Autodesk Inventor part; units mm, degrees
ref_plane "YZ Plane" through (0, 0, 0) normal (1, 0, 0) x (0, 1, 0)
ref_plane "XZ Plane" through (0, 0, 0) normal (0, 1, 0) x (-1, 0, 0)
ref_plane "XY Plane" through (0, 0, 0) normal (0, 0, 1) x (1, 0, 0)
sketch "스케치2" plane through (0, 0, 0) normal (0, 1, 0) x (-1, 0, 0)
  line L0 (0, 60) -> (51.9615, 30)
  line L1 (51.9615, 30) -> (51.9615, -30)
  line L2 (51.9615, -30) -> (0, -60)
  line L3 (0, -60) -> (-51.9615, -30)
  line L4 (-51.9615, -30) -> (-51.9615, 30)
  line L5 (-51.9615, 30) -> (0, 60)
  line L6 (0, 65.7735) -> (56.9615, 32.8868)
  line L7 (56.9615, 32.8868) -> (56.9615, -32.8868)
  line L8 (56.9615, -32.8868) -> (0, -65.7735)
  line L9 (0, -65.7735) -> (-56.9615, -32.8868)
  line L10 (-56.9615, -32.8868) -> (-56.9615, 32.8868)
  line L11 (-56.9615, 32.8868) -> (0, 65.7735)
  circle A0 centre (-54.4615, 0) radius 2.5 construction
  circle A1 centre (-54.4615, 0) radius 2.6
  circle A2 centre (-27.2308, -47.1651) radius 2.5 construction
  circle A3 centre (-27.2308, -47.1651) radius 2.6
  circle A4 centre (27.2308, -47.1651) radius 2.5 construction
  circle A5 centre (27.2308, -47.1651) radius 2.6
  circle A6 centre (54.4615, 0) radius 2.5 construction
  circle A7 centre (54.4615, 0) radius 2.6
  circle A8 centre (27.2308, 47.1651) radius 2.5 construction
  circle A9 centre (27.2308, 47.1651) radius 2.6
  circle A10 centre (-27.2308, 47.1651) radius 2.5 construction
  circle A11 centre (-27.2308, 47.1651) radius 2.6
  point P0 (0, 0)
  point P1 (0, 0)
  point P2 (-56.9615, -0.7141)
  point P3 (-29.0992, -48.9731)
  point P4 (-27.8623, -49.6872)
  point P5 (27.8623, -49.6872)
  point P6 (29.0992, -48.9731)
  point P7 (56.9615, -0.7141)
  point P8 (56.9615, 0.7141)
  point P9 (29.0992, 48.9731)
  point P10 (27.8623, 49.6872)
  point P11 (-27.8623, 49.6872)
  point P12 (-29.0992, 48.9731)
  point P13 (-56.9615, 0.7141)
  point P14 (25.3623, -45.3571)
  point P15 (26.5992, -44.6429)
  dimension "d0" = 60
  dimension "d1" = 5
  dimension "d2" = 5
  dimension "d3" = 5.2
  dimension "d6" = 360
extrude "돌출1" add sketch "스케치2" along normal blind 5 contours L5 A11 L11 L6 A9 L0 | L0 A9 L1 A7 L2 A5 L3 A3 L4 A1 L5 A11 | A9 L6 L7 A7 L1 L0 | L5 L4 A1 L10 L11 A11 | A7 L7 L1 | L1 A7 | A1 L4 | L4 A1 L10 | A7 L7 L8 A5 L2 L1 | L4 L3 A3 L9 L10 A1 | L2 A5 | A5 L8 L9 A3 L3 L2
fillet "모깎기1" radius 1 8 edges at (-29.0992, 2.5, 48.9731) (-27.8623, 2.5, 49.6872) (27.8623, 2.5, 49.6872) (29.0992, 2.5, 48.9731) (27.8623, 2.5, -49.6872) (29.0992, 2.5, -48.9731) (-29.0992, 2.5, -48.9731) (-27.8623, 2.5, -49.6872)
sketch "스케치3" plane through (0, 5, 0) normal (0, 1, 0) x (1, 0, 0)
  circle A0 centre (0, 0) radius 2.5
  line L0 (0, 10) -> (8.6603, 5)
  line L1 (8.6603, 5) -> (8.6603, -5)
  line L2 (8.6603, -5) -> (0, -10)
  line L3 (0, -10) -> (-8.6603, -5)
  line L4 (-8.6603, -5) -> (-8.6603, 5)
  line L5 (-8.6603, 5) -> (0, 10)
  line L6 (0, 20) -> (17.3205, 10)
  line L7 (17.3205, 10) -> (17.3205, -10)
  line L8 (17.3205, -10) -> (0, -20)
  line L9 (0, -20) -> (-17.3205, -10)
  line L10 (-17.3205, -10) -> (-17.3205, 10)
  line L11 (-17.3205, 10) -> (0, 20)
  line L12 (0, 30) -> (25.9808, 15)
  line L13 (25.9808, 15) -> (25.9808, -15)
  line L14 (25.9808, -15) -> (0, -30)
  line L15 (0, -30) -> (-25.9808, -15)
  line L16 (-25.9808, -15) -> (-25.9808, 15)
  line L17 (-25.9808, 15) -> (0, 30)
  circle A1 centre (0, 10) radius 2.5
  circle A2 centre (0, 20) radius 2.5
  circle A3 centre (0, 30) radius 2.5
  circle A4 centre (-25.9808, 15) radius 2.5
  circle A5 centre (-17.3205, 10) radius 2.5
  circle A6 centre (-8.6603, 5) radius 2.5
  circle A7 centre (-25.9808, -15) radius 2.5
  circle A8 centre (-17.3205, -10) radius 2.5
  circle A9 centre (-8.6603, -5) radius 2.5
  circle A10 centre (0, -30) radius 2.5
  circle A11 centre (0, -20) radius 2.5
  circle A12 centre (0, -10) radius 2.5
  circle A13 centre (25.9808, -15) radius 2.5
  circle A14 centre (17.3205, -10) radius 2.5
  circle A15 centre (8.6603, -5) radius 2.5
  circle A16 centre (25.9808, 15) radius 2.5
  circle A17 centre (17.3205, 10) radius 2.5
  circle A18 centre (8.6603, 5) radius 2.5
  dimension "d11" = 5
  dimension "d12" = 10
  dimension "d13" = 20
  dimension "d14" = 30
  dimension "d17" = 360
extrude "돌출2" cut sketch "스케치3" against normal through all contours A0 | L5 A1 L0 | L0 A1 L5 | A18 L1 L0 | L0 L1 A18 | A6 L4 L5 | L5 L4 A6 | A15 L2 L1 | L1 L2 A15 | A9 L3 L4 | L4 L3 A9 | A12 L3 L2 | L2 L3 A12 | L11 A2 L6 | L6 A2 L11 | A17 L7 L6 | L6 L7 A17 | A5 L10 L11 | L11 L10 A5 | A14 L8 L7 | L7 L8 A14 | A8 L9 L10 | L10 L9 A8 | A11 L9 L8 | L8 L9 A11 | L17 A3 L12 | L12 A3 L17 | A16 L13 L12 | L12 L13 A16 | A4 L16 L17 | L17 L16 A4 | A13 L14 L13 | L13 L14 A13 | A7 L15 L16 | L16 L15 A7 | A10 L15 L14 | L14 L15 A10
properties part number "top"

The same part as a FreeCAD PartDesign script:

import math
import FreeCAD as App
import Part
import Sketcher
Q = App.Units.Quantity


def edges_at(feature, points):
    """Names of the edges that pass closest to the given points."""
    edges = feature.Shape.Edges
    near = lambda p: min(range(len(edges)), key=lambda i: edges[i].distToShape(Part.Vertex(*p))[0])
    return sorted({f"Edge{near(p) + 1}" for p in points})

doc = App.newDocument("Part")
body = doc.addObject("PartDesign::Body", "Body")

sketch1 = body.newObject("Sketcher::SketchObject", "Sketch")
sketch1.AttachmentSupport = (doc.getObject("XZ_Plane"), [""])
sketch1.MapMode = "FlatFace"
sketch1.addGeometry([
    Part.LineSegment(App.Vector(29.1, 49, 0), App.Vector(57, 32.9, 0)),
    Part.LineSegment(App.Vector(57, 32.9, 0), App.Vector(57, -32.9, 0)),
    Part.LineSegment(App.Vector(57, -32.9, 0), App.Vector(29.1, -49, 0)),
    Part.ArcOfCircle(Part.Circle(App.Vector(27.2, -47.2, 0), App.Vector(0, 0, 1), 2.6), math.radians(-44), math.radians(284)),
    Part.LineSegment(App.Vector(27.9, -49.7, 0), App.Vector(0, -65.8, 0)),
    Part.LineSegment(App.Vector(0, -65.8, 0), App.Vector(-27.9, -49.7, 0)),
    Part.ArcOfCircle(Part.Circle(App.Vector(-27.2, -47.2, 0), App.Vector(0, 0, 1), 2.6), math.radians(-104), math.radians(44)),
    Part.LineSegment(App.Vector(-25.4, -45.4, 0), App.Vector(-26.6, -44.6, 0)),
    Part.ArcOfCircle(Part.Circle(App.Vector(-27.2, -47.2, 0), App.Vector(0, 0, 1), 2.6), math.radians(76), math.radians(224)),
    Part.LineSegment(App.Vector(-29.1, -49, 0), App.Vector(-57, -32.9, 0)),
    Part.LineSegment(App.Vector(-57, -32.9, 0), App.Vector(-57, 32.9, 0)),
    Part.LineSegment(App.Vector(-57, 32.9, 0), App.Vector(-29.1, 49, 0)),
    Part.ArcOfCircle(Part.Circle(App.Vector(-27.2, 47.2, 0), App.Vector(0, 0, 1), 2.6), math.radians(136), math.radians(464)),
    Part.LineSegment(App.Vector(-27.9, 49.7, 0), App.Vector(0, 65.8, 0)),
    Part.LineSegment(App.Vector(0, 65.8, 0), App.Vector(27.9, 49.7, 0)),
    Part.ArcOfCircle(Part.Circle(App.Vector(27.2, 47.2, 0), App.Vector(0, 0, 1), 2.6), math.radians(76), math.radians(404)),
], False)
sketch1.addConstraint([
    Sketcher.Constraint("Coincident", 0, 2, 1, 1),
    Sketcher.Constraint("Coincident", 1, 2, 2, 1),
    Sketcher.Constraint("Coincident", 2, 2, 3, 1),
    Sketcher.Constraint("Coincident", 3, 2, 4, 1),
    Sketcher.Constraint("Coincident", 4, 2, 5, 1),
    Sketcher.Constraint("Coincident", 5, 2, 6, 1),
    Sketcher.Constraint("Coincident", 6, 2, 7, 1),
    Sketcher.Constraint("Coincident", 7, 2, 8, 1),
    Sketcher.Constraint("Coincident", 8, 2, 9, 1),
    Sketcher.Constraint("Coincident", 9, 2, 10, 1),
    Sketcher.Constraint("Coincident", 10, 2, 11, 1),
    Sketcher.Constraint("Coincident", 11, 2, 12, 1),
    Sketcher.Constraint("Coincident", 12, 2, 13, 1),
    Sketcher.Constraint("Coincident", 13, 2, 14, 1),
    Sketcher.Constraint("Coincident", 14, 2, 15, 1),
    Sketcher.Constraint("Coincident", 15, 2, 0, 1),
    Sketcher.Constraint("Vertical", 1),
    Sketcher.Constraint("Vertical", 10),
    Sketcher.Constraint("Coincident", 8, 3, 6, 3),
    Sketcher.Constraint("Equal", 3, 6),
    Sketcher.Constraint("Equal", 6, 8),
    Sketcher.Constraint("Equal", 8, 12),
    Sketcher.Constraint("Equal", 12, 15),
    Sketcher.Constraint("Symmetric", 3, 3, 12, 3, -1, 1),
    Sketcher.Constraint("Symmetric", 6, 3, 15, 3, -1, 1),
    Sketcher.Constraint("Symmetric", 0, 2, 9, 2, -1, 1),
    Sketcher.Constraint("Symmetric", 4, 2, 13, 2, -1, 1),
    Sketcher.Constraint("Symmetric", 3, 3, 6, 3, -2),
    Sketcher.Constraint("PointOnObject", 4, 2, -2),
    Sketcher.Constraint("Parallel", 2, 4),
    Sketcher.Constraint("Parallel", 0, 5),
    Sketcher.Constraint("Parallel", 5, 7),
    Sketcher.Constraint("Parallel", 7, 9),
    Sketcher.Constraint("Parallel", 4, 11),
    Sketcher.Constraint("Parallel", 11, 13),
    Sketcher.Constraint("Parallel", 9, 14),
    Sketcher.Constraint("Horizontal", 3, 2, 5, 2),
    Sketcher.Constraint("Horizontal", 2, 2, 8, 2),
    Sketcher.Constraint("Horizontal", 0, 2, 10, 2),
    Sketcher.Constraint("Equal", 2, 4),
    Sketcher.Constraint("Radius", 3, Q("2.6 mm")),
    Sketcher.Constraint("Angle", 0, Q("-30 deg")),
    Sketcher.Constraint("DistanceY", 8, 2, 7, 2, Q("4.33 mm")),
    Sketcher.Constraint("Distance", 7, Q("1.428 mm")),
    Sketcher.Constraint("DistanceY", 1, 2, 1, 1, Q("65.7736 mm")),
    Sketcher.Constraint("DistanceY", 3, 3, -1, 1, Q("47.165 mm")),
    Sketcher.Constraint("DistanceX", 7, 2, -1, 1, Q("26.599 mm")),
])
pad1 = body.newObject("PartDesign::Pad", "Pad")
pad1.Profile = sketch1
pad1.Length = 5
pad1.Reversed = True
doc.recompute()

fillet = body.newObject("PartDesign::Fillet", "Fillet")
fillet.Base = (pad1, edges_at(pad1, [
    (-29.099, 2.5, 48.973),
    (-27.862, 2.5, 49.687),
    (27.862, 2.5, 49.687),
    (29.099, 2.5, 48.973),
    (27.862, 2.5, -49.687),
    (29.099, 2.5, -48.973),
    (-29.099, 2.5, -48.973),
    (-27.862, 2.5, -49.687),
]))
fillet.Radius = 1

sketch2 = body.newObject("Sketcher::SketchObject", "Sketch001")
sketch2.AttachmentSupport = (doc.getObject("XZ_Plane"), [""])
sketch2.MapMode = "FlatFace"
sketch2.AttachmentOffset = App.Placement(App.Vector(0, 0, -5), App.Rotation())
sketch2.addGeometry([
    Part.Circle(App.Vector(0, 0, 0), App.Vector(0, 0, 1), 2.5),
    Part.Circle(App.Vector(0, -10, 0), App.Vector(0, 0, 1), 2.5),
    Part.Circle(App.Vector(8.7, -5, 0), App.Vector(0, 0, 1), 2.5),
    Part.Circle(App.Vector(-8.7, -5, 0), App.Vector(0, 0, 1), 2.5),
    Part.Circle(App.Vector(8.7, 5, 0), App.Vector(0, 0, 1), 2.5),
    Part.Circle(App.Vector(-8.7, 5, 0), App.Vector(0, 0, 1), 2.5),
    Part.Circle(App.Vector(0, 10, 0), App.Vector(0, 0, 1), 2.5),
    Part.Circle(App.Vector(0, -20, 0), App.Vector(0, 0, 1), 2.5),
    Part.Circle(App.Vector(17.3, -10, 0), App.Vector(0, 0, 1), 2.5),
    Part.Circle(App.Vector(-17.3, -10, 0), App.Vector(0, 0, 1), 2.5),
    Part.Circle(App.Vector(17.3, 10, 0), App.Vector(0, 0, 1), 2.5),
    Part.Circle(App.Vector(-17.3, 10, 0), App.Vector(0, 0, 1), 2.5),
    Part.Circle(App.Vector(0, 20, 0), App.Vector(0, 0, 1), 2.5),
    Part.Circle(App.Vector(0, -30, 0), App.Vector(0, 0, 1), 2.5),
    Part.Circle(App.Vector(26, -15, 0), App.Vector(0, 0, 1), 2.5),
    Part.Circle(App.Vector(-26, -15, 0), App.Vector(0, 0, 1), 2.5),
    Part.Circle(App.Vector(26, 15, 0), App.Vector(0, 0, 1), 2.5),
    Part.Circle(App.Vector(-26, 15, 0), App.Vector(0, 0, 1), 2.5),
    Part.Circle(App.Vector(0, 30, 0), App.Vector(0, 0, 1), 2.5),
], False)
sketch2.addConstraint([
    Sketcher.Constraint("Coincident", 0, 3, -1, 1),
    Sketcher.Constraint("Equal", 0, 1),
    Sketcher.Constraint("Equal", 1, 2),
    Sketcher.Constraint("Equal", 2, 3),
    Sketcher.Constraint("Equal", 3, 4),
    Sketcher.Constraint("Equal", 4, 5),
    Sketcher.Constraint("Equal", 5, 6),
    Sketcher.Constraint("Equal", 6, 7),
    Sketcher.Constraint("Equal", 7, 8),
    Sketcher.Constraint("Equal", 8, 9),
    Sketcher.Constraint("Equal", 9, 10),
    Sketcher.Constraint("Equal", 10, 11),
    Sketcher.Constraint("Equal", 11, 12),
    Sketcher.Constraint("Equal", 12, 13),
    Sketcher.Constraint("Equal", 13, 14),
    Sketcher.Constraint("Equal", 14, 15),
    Sketcher.Constraint("Equal", 15, 16),
    Sketcher.Constraint("Equal", 16, 17),
    Sketcher.Constraint("Equal", 17, 18),
    Sketcher.Constraint("Symmetric", 3, 3, 4, 3, -1, 1),
    Sketcher.Constraint("Symmetric", 2, 3, 5, 3, -1, 1),
    Sketcher.Constraint("Symmetric", 1, 3, 6, 3, -1, 1),
    Sketcher.Constraint("Symmetric", 9, 3, 10, 3, -1, 1),
    Sketcher.Constraint("Symmetric", 8, 3, 11, 3, -1, 1),
    Sketcher.Constraint("Symmetric", 7, 3, 12, 3, -1, 1),
    Sketcher.Constraint("Symmetric", 15, 3, 16, 3, -1, 1),
    Sketcher.Constraint("Symmetric", 14, 3, 17, 3, -1, 1),
    Sketcher.Constraint("Symmetric", 13, 3, 18, 3, -1, 1),
    Sketcher.Constraint("Symmetric", 2, 3, 3, 3, -2),
    Sketcher.Constraint("Symmetric", 8, 3, 9, 3, -2),
    Sketcher.Constraint("Symmetric", 14, 3, 15, 3, -2),
    Sketcher.Constraint("PointOnObject", 1, 3, -2),
    Sketcher.Constraint("PointOnObject", 7, 3, -2),
    Sketcher.Constraint("PointOnObject", 13, 3, -2),
    Sketcher.Constraint("Horizontal", 1, 3, 8, 3),
    Sketcher.Constraint("Diameter", 0, Q("5 mm")),
    Sketcher.Constraint("DistanceY", 1, 3, -1, 1, Q("10 mm")),
    Sketcher.Constraint("DistanceY", 2, 3, -1, 1, Q("5 mm")),
    Sketcher.Constraint("DistanceY", 7, 3, -1, 1, Q("20 mm")),
    Sketcher.Constraint("DistanceY", 13, 3, -1, 1, Q("30 mm")),
    Sketcher.Constraint("DistanceY", 14, 3, 8, 3, Q("5 mm")),
    Sketcher.Constraint("DistanceX", -1, 1, 2, 3, Q("8.6603 mm")),
    Sketcher.Constraint("DistanceX", -1, 1, 8, 3, Q("17.3205 mm")),
    Sketcher.Constraint("DistanceX", -1, 1, 14, 3, Q("25.9808 mm")),
])
pocket1 = body.newObject("PartDesign::Pocket", "Pocket")
pocket1.Profile = sketch2
pocket1.Type = "ThroughAll"
pocket1.Reversed = True

doc.recompute()
